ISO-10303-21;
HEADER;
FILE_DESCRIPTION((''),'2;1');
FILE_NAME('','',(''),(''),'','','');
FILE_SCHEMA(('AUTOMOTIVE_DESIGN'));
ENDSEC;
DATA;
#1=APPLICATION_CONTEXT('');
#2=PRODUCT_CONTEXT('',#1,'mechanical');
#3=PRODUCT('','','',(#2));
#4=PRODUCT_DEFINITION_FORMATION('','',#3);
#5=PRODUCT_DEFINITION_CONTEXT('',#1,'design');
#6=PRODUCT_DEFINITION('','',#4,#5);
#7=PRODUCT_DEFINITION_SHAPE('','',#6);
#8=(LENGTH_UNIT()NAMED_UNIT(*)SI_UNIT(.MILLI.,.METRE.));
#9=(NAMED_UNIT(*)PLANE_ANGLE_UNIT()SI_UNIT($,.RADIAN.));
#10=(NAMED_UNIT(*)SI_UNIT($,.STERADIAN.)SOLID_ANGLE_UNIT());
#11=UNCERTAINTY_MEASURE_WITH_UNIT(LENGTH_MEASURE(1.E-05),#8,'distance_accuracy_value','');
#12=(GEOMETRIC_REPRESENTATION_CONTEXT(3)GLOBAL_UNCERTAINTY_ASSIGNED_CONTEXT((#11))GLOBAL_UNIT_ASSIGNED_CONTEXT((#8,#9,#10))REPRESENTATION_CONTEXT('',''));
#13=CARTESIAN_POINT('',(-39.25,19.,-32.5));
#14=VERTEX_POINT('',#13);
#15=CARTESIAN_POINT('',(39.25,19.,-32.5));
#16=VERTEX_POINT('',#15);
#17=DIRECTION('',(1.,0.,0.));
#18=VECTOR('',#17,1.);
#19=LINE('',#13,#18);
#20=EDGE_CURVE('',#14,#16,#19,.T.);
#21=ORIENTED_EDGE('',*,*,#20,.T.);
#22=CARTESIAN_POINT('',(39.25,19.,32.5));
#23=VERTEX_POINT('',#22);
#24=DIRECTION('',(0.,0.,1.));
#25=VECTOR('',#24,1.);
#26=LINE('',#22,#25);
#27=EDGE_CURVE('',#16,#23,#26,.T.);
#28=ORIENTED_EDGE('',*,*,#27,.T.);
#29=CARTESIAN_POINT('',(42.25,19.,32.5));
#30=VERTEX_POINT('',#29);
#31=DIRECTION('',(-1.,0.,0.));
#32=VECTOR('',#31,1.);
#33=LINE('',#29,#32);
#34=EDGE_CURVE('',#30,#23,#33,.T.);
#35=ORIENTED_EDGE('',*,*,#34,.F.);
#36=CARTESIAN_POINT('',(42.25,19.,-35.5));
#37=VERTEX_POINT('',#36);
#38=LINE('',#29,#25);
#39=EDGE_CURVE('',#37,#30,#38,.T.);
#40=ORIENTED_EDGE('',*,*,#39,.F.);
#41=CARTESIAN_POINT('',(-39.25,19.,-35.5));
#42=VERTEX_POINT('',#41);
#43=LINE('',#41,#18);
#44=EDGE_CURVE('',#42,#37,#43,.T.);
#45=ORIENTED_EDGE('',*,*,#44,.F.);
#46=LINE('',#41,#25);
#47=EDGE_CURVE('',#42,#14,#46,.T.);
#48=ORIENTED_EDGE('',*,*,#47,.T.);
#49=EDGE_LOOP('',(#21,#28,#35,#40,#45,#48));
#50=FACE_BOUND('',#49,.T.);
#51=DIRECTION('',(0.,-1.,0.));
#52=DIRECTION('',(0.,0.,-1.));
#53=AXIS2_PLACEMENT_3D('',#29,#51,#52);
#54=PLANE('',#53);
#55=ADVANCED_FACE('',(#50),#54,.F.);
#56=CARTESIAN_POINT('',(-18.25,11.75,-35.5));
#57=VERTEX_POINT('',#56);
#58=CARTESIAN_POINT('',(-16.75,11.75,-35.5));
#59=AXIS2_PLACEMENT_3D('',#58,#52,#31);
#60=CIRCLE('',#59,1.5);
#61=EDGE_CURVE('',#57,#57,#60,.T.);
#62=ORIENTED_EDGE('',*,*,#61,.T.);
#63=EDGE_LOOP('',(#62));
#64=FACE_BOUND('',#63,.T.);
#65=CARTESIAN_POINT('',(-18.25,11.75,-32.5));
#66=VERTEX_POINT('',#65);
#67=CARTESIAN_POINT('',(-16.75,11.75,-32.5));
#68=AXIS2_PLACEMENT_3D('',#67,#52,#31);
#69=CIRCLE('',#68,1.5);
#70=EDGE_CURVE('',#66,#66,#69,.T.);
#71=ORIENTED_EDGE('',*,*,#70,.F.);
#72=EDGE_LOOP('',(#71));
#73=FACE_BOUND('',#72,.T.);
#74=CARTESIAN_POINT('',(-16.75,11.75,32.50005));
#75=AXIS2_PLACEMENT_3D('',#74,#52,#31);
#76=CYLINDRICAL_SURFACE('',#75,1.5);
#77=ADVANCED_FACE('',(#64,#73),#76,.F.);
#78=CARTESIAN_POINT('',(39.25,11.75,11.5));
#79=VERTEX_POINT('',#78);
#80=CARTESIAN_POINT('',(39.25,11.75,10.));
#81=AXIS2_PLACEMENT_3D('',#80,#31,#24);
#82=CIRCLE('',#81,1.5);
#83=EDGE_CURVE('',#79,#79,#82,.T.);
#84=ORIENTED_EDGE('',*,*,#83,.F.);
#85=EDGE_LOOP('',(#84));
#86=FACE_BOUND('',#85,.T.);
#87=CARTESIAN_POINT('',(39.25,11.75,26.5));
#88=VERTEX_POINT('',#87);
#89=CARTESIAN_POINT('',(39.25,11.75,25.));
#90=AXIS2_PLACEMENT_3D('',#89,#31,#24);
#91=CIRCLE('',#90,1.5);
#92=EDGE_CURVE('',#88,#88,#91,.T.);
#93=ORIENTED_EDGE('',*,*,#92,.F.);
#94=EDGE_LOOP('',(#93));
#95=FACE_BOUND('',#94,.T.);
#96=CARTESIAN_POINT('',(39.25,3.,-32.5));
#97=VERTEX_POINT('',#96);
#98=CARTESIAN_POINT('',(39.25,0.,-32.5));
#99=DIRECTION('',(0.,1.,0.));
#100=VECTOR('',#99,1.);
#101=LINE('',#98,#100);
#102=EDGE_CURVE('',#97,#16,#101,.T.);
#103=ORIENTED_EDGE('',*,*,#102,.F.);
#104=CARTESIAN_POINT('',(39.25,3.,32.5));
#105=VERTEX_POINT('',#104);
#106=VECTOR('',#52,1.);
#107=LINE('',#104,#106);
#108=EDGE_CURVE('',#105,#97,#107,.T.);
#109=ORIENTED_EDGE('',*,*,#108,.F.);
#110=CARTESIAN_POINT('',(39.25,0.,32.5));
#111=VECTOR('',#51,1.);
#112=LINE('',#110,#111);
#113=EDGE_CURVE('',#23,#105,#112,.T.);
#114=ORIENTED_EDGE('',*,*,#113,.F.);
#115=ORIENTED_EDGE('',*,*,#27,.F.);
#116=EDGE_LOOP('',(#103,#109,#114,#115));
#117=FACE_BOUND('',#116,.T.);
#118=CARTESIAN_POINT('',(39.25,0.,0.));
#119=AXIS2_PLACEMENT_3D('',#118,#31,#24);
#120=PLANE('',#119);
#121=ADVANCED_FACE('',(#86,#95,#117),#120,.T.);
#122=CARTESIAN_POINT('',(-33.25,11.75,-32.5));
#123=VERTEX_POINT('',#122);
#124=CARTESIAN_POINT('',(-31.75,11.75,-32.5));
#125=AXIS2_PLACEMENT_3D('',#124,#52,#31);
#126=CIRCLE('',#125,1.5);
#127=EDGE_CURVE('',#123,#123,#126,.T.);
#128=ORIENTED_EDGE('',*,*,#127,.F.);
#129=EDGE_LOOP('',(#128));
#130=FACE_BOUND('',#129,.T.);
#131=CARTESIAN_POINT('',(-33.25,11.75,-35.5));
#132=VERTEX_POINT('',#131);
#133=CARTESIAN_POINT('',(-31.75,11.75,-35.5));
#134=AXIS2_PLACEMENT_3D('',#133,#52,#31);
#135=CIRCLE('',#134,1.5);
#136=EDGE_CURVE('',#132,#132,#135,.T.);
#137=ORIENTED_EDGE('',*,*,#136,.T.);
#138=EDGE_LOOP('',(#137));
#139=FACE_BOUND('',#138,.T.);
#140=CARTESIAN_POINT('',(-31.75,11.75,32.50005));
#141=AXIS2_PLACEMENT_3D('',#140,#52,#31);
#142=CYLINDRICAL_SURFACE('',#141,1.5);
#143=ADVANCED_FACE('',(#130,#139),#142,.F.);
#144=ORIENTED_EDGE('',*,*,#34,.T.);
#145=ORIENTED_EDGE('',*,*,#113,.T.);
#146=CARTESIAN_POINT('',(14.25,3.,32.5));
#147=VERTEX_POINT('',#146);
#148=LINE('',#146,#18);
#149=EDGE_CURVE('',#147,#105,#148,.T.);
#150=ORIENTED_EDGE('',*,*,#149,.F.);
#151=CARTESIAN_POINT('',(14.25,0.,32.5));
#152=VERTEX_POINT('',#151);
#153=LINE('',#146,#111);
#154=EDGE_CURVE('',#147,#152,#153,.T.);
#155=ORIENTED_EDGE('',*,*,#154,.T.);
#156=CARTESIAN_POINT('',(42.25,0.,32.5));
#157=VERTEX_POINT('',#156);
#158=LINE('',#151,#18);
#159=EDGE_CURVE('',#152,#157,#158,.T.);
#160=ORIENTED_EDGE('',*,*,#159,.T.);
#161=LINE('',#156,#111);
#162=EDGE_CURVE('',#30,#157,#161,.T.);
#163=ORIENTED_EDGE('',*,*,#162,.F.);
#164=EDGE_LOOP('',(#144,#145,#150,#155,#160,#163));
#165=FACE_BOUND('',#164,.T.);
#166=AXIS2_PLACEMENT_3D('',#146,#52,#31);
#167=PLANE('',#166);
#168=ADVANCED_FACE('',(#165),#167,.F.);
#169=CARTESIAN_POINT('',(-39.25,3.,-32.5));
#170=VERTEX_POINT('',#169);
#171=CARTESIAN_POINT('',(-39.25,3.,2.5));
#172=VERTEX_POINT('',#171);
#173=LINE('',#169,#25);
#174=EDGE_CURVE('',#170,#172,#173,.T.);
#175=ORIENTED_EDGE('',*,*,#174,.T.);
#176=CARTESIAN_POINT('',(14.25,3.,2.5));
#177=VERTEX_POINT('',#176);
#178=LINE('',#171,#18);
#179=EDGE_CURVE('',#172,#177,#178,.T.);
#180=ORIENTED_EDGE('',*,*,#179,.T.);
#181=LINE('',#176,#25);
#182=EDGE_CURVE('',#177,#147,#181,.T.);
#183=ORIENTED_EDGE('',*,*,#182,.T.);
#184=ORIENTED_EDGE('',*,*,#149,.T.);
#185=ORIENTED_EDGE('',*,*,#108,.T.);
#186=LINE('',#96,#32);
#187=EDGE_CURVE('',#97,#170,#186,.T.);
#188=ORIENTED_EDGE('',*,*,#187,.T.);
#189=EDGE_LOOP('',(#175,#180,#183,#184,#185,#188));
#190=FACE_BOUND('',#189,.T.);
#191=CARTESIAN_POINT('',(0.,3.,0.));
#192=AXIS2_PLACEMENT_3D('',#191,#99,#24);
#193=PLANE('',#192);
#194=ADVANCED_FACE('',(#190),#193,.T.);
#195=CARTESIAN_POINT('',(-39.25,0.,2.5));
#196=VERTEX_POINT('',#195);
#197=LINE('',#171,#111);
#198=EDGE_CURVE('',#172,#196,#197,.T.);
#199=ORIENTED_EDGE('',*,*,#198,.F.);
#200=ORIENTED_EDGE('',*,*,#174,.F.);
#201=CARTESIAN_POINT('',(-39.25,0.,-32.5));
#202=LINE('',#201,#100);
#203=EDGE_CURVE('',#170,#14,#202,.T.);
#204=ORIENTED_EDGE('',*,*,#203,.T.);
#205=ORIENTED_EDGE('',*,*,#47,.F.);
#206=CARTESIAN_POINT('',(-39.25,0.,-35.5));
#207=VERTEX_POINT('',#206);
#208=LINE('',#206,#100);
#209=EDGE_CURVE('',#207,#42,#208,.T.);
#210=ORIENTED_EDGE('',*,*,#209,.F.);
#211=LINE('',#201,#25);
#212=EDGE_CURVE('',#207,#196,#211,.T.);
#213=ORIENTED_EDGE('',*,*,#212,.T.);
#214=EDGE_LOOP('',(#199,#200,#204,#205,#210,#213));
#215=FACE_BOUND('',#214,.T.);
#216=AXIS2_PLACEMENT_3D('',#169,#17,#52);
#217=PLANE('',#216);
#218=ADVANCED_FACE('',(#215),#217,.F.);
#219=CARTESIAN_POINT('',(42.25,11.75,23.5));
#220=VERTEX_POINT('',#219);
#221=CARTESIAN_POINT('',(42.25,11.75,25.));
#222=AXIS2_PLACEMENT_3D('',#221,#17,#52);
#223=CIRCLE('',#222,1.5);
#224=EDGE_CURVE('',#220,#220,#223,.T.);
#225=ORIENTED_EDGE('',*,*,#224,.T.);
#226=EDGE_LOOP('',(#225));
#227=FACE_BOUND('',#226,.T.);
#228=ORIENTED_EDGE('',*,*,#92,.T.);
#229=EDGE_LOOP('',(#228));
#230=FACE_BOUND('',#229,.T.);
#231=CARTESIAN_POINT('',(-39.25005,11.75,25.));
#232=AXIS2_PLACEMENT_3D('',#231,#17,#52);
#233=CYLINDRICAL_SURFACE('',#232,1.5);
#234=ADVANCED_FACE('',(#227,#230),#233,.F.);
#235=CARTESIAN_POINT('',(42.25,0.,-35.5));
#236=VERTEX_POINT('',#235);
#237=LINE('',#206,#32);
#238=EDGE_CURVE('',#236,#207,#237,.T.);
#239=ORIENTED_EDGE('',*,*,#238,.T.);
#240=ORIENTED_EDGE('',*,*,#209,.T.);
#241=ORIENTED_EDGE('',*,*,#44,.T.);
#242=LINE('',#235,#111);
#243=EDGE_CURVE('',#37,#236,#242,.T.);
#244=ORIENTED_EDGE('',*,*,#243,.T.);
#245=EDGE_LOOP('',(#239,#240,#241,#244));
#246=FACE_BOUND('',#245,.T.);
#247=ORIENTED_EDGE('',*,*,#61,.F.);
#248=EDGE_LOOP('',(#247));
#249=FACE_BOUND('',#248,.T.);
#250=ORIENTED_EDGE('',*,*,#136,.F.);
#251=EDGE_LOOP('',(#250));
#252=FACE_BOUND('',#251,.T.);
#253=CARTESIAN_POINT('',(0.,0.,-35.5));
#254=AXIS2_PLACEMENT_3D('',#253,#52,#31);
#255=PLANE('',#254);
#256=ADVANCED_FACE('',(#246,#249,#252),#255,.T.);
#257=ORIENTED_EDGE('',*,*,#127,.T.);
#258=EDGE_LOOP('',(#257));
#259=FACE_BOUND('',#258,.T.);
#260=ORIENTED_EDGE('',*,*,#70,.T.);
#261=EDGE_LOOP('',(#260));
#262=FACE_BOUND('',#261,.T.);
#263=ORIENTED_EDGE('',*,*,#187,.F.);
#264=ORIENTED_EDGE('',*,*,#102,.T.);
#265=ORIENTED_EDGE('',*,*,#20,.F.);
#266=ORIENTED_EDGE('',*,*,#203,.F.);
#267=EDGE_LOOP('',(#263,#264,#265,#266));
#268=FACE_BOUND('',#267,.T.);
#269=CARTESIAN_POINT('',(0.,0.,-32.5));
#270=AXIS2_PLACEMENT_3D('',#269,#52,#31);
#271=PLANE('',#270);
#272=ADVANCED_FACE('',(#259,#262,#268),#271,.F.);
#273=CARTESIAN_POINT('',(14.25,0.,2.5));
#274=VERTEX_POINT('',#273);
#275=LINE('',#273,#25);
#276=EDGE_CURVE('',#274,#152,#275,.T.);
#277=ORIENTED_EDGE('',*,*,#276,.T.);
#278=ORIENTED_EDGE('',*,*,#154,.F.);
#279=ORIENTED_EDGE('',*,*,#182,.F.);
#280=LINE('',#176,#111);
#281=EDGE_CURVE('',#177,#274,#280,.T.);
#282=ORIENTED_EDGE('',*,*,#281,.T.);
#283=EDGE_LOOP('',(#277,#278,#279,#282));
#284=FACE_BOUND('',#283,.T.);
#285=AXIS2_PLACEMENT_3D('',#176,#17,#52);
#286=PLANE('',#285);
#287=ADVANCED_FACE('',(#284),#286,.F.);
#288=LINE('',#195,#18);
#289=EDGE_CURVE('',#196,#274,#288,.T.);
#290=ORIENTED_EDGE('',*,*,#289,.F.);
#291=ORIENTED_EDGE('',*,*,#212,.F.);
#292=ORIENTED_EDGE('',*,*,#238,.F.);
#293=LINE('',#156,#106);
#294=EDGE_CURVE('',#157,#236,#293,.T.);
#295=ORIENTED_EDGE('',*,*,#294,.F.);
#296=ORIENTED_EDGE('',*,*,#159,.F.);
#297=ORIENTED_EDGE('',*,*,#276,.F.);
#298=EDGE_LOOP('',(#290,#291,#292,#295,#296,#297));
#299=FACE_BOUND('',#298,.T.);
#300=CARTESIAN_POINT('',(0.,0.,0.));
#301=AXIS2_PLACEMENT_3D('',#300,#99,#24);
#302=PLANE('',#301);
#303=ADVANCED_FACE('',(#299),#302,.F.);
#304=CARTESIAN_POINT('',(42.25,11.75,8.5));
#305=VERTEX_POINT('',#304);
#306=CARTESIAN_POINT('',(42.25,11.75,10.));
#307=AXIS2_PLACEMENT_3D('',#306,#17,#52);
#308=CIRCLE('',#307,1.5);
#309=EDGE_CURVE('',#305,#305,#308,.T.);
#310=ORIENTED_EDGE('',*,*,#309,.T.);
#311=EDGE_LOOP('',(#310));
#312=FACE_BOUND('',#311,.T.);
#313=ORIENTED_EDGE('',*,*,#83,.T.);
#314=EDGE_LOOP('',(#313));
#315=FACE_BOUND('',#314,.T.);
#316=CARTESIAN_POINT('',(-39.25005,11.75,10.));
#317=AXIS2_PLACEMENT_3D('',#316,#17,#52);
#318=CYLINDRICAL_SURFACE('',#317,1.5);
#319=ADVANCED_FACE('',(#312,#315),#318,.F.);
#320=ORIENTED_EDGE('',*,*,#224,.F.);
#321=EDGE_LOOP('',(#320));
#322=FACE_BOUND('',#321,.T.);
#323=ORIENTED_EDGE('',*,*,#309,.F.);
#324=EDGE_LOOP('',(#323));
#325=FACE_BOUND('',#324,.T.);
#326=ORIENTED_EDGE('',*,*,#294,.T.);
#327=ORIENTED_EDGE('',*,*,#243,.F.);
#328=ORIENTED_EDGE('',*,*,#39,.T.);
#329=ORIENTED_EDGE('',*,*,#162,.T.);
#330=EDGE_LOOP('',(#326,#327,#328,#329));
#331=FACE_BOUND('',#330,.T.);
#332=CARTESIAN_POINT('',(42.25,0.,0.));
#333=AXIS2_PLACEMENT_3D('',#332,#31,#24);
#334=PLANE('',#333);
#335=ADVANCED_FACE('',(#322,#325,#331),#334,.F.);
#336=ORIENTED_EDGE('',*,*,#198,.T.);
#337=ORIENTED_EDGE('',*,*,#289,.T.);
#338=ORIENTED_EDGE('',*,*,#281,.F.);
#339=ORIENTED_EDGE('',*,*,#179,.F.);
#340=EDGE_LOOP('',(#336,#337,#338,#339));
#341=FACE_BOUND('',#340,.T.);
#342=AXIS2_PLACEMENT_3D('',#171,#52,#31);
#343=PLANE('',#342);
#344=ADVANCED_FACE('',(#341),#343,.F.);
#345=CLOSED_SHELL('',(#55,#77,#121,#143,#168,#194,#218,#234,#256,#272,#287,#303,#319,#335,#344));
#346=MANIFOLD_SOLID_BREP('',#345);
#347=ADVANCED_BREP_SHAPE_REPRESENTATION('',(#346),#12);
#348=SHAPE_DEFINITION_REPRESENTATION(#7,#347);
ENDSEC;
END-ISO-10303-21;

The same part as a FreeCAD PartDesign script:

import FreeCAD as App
import Part
import Sketcher
from FreeCAD import Vector

doc = App.newDocument("Part")
body = doc.addObject("PartDesign::Body", "Body")

# Sketch on XZ plane
sketch1 = body.newObject("Sketcher::SketchObject", "Sketch")
sketch1.AttachmentSupport = (doc.getObject("XZ_Plane"), [""])
sketch1.MapMode = "FlatFace"
sketch1.addGeometry([
    Part.LineSegment(Vector(-39, 2, 0), Vector(14, 2, 0)),  # 0
    Part.LineSegment(Vector(14, 2, 0), Vector(14, 32, 0)),  # 1
    Part.LineSegment(Vector(14, 32, 0), Vector(39, 32, 0)),  # 2
    Part.LineSegment(Vector(39, 32, 0), Vector(39, -32, 0)),  # 3
    Part.LineSegment(Vector(39, -32, 0), Vector(-39, -32, 0)),  # 4
    Part.LineSegment(Vector(-39, -32, 0), Vector(-39, 2, 0)),  # 5
], False)
sketch1.addConstraint([
    Sketcher.Constraint("Coincident", 0, 2, 1, 1),
    Sketcher.Constraint("Coincident", 1, 2, 2, 1),
    Sketcher.Constraint("Coincident", 2, 2, 3, 1),
    Sketcher.Constraint("Coincident", 3, 2, 4, 1),
    Sketcher.Constraint("Coincident", 4, 2, 5, 1),
    Sketcher.Constraint("Coincident", 5, 2, 0, 1),
    Sketcher.Constraint("Horizontal", 0),
    Sketcher.Constraint("Vertical", 1),
    Sketcher.Constraint("Horizontal", 2),
    Sketcher.Constraint("Vertical", 3),
    Sketcher.Constraint("Horizontal", 4),
    Sketcher.Constraint("Vertical", 5),
    Sketcher.Constraint("Symmetric", 2, 2, 4, 2, -1, 1),
    Sketcher.Constraint("DistanceX", 2, 1, 2, 2, 25.0),
    Sketcher.Constraint("DistanceY", 1, 1, 1, 2, 30.0),
    Sketcher.Constraint("DistanceY", 3, 2, 3, 1, 65.0),
    Sketcher.Constraint("DistanceX", 0, 1, 0, 2, 53.5),
])
pad1 = body.newObject("PartDesign::Pad", "Pad")
pad1.Profile = sketch1
pad1.Length = 3
pad1.Reversed = True

# Sketch on YZ plane
sketch2 = body.newObject("Sketcher::SketchObject", "Sketch001")
sketch2.AttachmentSupport = (doc.getObject("YZ_Plane"), [""])
sketch2.MapMode = "FlatFace"
sketch2.AttachmentOffset = App.Placement(Vector(0, 0, 39.25), App.Rotation())
sketch2.addGeometry([
    Part.LineSegment(Vector(19, 32, 0), Vector(0, 32, 0)),
    Part.LineSegment(Vector(0, 32, 0), Vector(0, -32, 0)),
    Part.LineSegment(Vector(0, -32, 0), Vector(19, -32, 0)),
    Part.LineSegment(Vector(19, -32, 0), Vector(19, 32, 0)),
], False)
sketch2.addConstraint([
    Sketcher.Constraint("Coincident", 0, 2, 1, 1),
    Sketcher.Constraint("Coincident", 1, 2, 2, 1),
    Sketcher.Constraint("Coincident", 2, 2, 3, 1),
    Sketcher.Constraint("Coincident", 3, 2, 0, 1),
    Sketcher.Constraint("Horizontal", 0),
    Sketcher.Constraint("Vertical", 1),
    Sketcher.Constraint("Horizontal", 2),
    Sketcher.Constraint("Vertical", 3),
    Sketcher.Constraint("Symmetric", 0, 2, 1, 2, -1, 1),
    Sketcher.Constraint("DistanceX", 0, 2, 0, 1, 19.0),
    Sketcher.Constraint("DistanceY", 1, 2, 1, 1, 65.0),
])
pad2 = body.newObject("PartDesign::Pad", "Pad001")
pad2.Profile = sketch2
pad2.Length = 3

# Sketch on XY plane
sketch3 = body.newObject("Sketcher::SketchObject", "Sketch002")
sketch3.AttachmentSupport = (doc.getObject("XY_Plane"), [""])
sketch3.MapMode = "FlatFace"
sketch3.AttachmentOffset = App.Placement(Vector(0, 0, -32.5), App.Rotation())
sketch3.addGeometry([
    Part.LineSegment(Vector(42, 19, 0), Vector(42, 0, 0)),
    Part.LineSegment(Vector(42, 0, 0), Vector(-39, 0, 0)),
    Part.LineSegment(Vector(-39, 0, 0), Vector(-39, 19, 0)),
    Part.LineSegment(Vector(-39, 19, 0), Vector(42, 19, 0)),
], False)
sketch3.addConstraint([
    Sketcher.Constraint("Coincident", 0, 2, 1, 1),
    Sketcher.Constraint("Coincident", 1, 2, 2, 1),
    Sketcher.Constraint("Coincident", 2, 2, 3, 1),
    Sketcher.Constraint("Coincident", 3, 2, 0, 1),
    Sketcher.Constraint("Vertical", 0),
    Sketcher.Constraint("Horizontal", 1),
    Sketcher.Constraint("Vertical", 2),
    Sketcher.Constraint("Horizontal", 3),
    Sketcher.Constraint("PointOnObject", 0, 2, -1),
    Sketcher.Constraint("DistanceY", 0, 2, 0, 1, 19.0),
    Sketcher.Constraint("DistanceX", 1, 2, 1, 1, 81.5),
    Sketcher.Constraint("DistanceX", -1, 1, 0, 2, 42.25),
])
pad3 = body.newObject("PartDesign::Pad", "Pad002")
pad3.Profile = sketch3
pad3.Length = 3
pad3.Reversed = True

# Sketch on XY plane
sketch4 = body.newObject("Sketcher::SketchObject", "Sketch003")
sketch4.AttachmentSupport = (doc.getObject("XY_Plane"), [""])
sketch4.MapMode = "FlatFace"
sketch4.AttachmentOffset = App.Placement(Vector(0, 0, -35.5), App.Rotation())
sketch4.addGeometry([
    Part.Circle(Vector(-31.8, 11.8, 0), Vector(0, 0, 1), 1.5),
    Part.Circle(Vector(-16.8, 11.8, 0), Vector(0, 0, 1), 1.5),
], False)
sketch4.addConstraint([
    Sketcher.Constraint("Equal", 0, 1),
    Sketcher.Constraint("Horizontal", 0, 3, 1, 3),
    Sketcher.Constraint("Diameter", 0, 3.0),
    Sketcher.Constraint("DistanceX", 0, 3, 1, 3, 15.0),
    Sketcher.Constraint("DistanceX", 0, 3, -1, 1, 31.75),
    Sketcher.Constraint("DistanceY", -1, 1, 0, 3, 11.75),
])
pocket1 = body.newObject("PartDesign::Pocket", "Pocket")
pocket1.Profile = sketch4
pocket1.Type = "ThroughAll"
pocket1.Reversed = True

# Sketch on YZ plane
sketch5 = body.newObject("Sketcher::SketchObject", "Sketch004")
sketch5.AttachmentSupport = (doc.getObject("YZ_Plane"), [""])
sketch5.MapMode = "FlatFace"
sketch5.AttachmentOffset = App.Placement(Vector(0, 0, 42.25), App.Rotation())
sketch5.addGeometry([
    Part.Circle(Vector(11.8, 25, 0), Vector(0, 0, 1), 1.5),
    Part.Circle(Vector(11.8, 10, 0), Vector(0, 0, 1), 1.5),
], False)
sketch5.addConstraint([
    Sketcher.Constraint("Equal", 0, 1),
    Sketcher.Constraint("Vertical", 0, 3, 1, 3),
    Sketcher.Constraint("Diameter", 0, 3.0),
    Sketcher.Constraint("DistanceY", -1, 1, 0, 3, 25.0),
    Sketcher.Constraint("DistanceY", -1, 1, 1, 3, 10.0),
    Sketcher.Constraint("DistanceX", -1, 1, 0, 3, 11.75),
])
pocket2 = body.newObject("PartDesign::Pocket", "Pocket001")
pocket2.Profile = sketch5
pocket2.Type = "ThroughAll"

doc.recompute()
